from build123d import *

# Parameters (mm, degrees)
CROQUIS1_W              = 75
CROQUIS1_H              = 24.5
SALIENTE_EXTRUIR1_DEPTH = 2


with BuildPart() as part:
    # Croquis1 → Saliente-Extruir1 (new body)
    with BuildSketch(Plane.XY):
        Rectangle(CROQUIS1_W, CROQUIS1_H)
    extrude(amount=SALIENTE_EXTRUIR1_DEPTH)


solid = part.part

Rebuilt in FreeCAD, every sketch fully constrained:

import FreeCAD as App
import Part
import Sketcher
from FreeCAD import Vector
Q = App.Units.Quantity

doc = App.newDocument("Part")
body = doc.addObject("PartDesign::Body", "Body")

sketch1 = doc.addObject("Sketcher::SketchObject", "Sketch")
body.addObject(sketch1)
sketch1.AttachmentSupport = (doc.XY_Plane, [""])
sketch1.MapMode = "FlatFace"
sketch1.addGeometry(Part.LineSegment(Vector(-38, 12, 0), Vector(-38, -12, 0)), False)
sketch1.addGeometry(Part.LineSegment(Vector(-38, -12, 0), Vector(38, -12, 0)), False)
sketch1.addGeometry(Part.LineSegment(Vector(38, -12, 0), Vector(38, 12, 0)), False)
sketch1.addGeometry(Part.LineSegment(Vector(38, 12, 0), Vector(-38, 12, 0)), False)
sketch1.addConstraint(Sketcher.Constraint("Coincident", 0, 2, 1, 1))
sketch1.addConstraint(Sketcher.Constraint("Coincident", 1, 2, 2, 1))
sketch1.addConstraint(Sketcher.Constraint("Coincident", 2, 2, 3, 1))
sketch1.addConstraint(Sketcher.Constraint("Coincident", 3, 2, 0, 1))
sketch1.addConstraint(Sketcher.Constraint("Vertical", 0))
sketch1.addConstraint(Sketcher.Constraint("Horizontal", 1))
sketch1.addConstraint(Sketcher.Constraint("Vertical", 2))
sketch1.addConstraint(Sketcher.Constraint("Horizontal", 3))
sketch1.addConstraint(Sketcher.Constraint("Symmetric", 0, 2, 2, 2, -1, 1))
sketch1.addConstraint(Sketcher.Constraint("DistanceX", 1, 1, 1, 2, Q("75 mm")))
sketch1.addConstraint(Sketcher.Constraint("DistanceY", 0, 2, 0, 1, Q("24.5 mm")))
pad1 = doc.addObject("PartDesign::Pad", "Pad")
body.addObject(pad1)
pad1.Profile = sketch1
pad1.Length = 2

doc.recompute()
